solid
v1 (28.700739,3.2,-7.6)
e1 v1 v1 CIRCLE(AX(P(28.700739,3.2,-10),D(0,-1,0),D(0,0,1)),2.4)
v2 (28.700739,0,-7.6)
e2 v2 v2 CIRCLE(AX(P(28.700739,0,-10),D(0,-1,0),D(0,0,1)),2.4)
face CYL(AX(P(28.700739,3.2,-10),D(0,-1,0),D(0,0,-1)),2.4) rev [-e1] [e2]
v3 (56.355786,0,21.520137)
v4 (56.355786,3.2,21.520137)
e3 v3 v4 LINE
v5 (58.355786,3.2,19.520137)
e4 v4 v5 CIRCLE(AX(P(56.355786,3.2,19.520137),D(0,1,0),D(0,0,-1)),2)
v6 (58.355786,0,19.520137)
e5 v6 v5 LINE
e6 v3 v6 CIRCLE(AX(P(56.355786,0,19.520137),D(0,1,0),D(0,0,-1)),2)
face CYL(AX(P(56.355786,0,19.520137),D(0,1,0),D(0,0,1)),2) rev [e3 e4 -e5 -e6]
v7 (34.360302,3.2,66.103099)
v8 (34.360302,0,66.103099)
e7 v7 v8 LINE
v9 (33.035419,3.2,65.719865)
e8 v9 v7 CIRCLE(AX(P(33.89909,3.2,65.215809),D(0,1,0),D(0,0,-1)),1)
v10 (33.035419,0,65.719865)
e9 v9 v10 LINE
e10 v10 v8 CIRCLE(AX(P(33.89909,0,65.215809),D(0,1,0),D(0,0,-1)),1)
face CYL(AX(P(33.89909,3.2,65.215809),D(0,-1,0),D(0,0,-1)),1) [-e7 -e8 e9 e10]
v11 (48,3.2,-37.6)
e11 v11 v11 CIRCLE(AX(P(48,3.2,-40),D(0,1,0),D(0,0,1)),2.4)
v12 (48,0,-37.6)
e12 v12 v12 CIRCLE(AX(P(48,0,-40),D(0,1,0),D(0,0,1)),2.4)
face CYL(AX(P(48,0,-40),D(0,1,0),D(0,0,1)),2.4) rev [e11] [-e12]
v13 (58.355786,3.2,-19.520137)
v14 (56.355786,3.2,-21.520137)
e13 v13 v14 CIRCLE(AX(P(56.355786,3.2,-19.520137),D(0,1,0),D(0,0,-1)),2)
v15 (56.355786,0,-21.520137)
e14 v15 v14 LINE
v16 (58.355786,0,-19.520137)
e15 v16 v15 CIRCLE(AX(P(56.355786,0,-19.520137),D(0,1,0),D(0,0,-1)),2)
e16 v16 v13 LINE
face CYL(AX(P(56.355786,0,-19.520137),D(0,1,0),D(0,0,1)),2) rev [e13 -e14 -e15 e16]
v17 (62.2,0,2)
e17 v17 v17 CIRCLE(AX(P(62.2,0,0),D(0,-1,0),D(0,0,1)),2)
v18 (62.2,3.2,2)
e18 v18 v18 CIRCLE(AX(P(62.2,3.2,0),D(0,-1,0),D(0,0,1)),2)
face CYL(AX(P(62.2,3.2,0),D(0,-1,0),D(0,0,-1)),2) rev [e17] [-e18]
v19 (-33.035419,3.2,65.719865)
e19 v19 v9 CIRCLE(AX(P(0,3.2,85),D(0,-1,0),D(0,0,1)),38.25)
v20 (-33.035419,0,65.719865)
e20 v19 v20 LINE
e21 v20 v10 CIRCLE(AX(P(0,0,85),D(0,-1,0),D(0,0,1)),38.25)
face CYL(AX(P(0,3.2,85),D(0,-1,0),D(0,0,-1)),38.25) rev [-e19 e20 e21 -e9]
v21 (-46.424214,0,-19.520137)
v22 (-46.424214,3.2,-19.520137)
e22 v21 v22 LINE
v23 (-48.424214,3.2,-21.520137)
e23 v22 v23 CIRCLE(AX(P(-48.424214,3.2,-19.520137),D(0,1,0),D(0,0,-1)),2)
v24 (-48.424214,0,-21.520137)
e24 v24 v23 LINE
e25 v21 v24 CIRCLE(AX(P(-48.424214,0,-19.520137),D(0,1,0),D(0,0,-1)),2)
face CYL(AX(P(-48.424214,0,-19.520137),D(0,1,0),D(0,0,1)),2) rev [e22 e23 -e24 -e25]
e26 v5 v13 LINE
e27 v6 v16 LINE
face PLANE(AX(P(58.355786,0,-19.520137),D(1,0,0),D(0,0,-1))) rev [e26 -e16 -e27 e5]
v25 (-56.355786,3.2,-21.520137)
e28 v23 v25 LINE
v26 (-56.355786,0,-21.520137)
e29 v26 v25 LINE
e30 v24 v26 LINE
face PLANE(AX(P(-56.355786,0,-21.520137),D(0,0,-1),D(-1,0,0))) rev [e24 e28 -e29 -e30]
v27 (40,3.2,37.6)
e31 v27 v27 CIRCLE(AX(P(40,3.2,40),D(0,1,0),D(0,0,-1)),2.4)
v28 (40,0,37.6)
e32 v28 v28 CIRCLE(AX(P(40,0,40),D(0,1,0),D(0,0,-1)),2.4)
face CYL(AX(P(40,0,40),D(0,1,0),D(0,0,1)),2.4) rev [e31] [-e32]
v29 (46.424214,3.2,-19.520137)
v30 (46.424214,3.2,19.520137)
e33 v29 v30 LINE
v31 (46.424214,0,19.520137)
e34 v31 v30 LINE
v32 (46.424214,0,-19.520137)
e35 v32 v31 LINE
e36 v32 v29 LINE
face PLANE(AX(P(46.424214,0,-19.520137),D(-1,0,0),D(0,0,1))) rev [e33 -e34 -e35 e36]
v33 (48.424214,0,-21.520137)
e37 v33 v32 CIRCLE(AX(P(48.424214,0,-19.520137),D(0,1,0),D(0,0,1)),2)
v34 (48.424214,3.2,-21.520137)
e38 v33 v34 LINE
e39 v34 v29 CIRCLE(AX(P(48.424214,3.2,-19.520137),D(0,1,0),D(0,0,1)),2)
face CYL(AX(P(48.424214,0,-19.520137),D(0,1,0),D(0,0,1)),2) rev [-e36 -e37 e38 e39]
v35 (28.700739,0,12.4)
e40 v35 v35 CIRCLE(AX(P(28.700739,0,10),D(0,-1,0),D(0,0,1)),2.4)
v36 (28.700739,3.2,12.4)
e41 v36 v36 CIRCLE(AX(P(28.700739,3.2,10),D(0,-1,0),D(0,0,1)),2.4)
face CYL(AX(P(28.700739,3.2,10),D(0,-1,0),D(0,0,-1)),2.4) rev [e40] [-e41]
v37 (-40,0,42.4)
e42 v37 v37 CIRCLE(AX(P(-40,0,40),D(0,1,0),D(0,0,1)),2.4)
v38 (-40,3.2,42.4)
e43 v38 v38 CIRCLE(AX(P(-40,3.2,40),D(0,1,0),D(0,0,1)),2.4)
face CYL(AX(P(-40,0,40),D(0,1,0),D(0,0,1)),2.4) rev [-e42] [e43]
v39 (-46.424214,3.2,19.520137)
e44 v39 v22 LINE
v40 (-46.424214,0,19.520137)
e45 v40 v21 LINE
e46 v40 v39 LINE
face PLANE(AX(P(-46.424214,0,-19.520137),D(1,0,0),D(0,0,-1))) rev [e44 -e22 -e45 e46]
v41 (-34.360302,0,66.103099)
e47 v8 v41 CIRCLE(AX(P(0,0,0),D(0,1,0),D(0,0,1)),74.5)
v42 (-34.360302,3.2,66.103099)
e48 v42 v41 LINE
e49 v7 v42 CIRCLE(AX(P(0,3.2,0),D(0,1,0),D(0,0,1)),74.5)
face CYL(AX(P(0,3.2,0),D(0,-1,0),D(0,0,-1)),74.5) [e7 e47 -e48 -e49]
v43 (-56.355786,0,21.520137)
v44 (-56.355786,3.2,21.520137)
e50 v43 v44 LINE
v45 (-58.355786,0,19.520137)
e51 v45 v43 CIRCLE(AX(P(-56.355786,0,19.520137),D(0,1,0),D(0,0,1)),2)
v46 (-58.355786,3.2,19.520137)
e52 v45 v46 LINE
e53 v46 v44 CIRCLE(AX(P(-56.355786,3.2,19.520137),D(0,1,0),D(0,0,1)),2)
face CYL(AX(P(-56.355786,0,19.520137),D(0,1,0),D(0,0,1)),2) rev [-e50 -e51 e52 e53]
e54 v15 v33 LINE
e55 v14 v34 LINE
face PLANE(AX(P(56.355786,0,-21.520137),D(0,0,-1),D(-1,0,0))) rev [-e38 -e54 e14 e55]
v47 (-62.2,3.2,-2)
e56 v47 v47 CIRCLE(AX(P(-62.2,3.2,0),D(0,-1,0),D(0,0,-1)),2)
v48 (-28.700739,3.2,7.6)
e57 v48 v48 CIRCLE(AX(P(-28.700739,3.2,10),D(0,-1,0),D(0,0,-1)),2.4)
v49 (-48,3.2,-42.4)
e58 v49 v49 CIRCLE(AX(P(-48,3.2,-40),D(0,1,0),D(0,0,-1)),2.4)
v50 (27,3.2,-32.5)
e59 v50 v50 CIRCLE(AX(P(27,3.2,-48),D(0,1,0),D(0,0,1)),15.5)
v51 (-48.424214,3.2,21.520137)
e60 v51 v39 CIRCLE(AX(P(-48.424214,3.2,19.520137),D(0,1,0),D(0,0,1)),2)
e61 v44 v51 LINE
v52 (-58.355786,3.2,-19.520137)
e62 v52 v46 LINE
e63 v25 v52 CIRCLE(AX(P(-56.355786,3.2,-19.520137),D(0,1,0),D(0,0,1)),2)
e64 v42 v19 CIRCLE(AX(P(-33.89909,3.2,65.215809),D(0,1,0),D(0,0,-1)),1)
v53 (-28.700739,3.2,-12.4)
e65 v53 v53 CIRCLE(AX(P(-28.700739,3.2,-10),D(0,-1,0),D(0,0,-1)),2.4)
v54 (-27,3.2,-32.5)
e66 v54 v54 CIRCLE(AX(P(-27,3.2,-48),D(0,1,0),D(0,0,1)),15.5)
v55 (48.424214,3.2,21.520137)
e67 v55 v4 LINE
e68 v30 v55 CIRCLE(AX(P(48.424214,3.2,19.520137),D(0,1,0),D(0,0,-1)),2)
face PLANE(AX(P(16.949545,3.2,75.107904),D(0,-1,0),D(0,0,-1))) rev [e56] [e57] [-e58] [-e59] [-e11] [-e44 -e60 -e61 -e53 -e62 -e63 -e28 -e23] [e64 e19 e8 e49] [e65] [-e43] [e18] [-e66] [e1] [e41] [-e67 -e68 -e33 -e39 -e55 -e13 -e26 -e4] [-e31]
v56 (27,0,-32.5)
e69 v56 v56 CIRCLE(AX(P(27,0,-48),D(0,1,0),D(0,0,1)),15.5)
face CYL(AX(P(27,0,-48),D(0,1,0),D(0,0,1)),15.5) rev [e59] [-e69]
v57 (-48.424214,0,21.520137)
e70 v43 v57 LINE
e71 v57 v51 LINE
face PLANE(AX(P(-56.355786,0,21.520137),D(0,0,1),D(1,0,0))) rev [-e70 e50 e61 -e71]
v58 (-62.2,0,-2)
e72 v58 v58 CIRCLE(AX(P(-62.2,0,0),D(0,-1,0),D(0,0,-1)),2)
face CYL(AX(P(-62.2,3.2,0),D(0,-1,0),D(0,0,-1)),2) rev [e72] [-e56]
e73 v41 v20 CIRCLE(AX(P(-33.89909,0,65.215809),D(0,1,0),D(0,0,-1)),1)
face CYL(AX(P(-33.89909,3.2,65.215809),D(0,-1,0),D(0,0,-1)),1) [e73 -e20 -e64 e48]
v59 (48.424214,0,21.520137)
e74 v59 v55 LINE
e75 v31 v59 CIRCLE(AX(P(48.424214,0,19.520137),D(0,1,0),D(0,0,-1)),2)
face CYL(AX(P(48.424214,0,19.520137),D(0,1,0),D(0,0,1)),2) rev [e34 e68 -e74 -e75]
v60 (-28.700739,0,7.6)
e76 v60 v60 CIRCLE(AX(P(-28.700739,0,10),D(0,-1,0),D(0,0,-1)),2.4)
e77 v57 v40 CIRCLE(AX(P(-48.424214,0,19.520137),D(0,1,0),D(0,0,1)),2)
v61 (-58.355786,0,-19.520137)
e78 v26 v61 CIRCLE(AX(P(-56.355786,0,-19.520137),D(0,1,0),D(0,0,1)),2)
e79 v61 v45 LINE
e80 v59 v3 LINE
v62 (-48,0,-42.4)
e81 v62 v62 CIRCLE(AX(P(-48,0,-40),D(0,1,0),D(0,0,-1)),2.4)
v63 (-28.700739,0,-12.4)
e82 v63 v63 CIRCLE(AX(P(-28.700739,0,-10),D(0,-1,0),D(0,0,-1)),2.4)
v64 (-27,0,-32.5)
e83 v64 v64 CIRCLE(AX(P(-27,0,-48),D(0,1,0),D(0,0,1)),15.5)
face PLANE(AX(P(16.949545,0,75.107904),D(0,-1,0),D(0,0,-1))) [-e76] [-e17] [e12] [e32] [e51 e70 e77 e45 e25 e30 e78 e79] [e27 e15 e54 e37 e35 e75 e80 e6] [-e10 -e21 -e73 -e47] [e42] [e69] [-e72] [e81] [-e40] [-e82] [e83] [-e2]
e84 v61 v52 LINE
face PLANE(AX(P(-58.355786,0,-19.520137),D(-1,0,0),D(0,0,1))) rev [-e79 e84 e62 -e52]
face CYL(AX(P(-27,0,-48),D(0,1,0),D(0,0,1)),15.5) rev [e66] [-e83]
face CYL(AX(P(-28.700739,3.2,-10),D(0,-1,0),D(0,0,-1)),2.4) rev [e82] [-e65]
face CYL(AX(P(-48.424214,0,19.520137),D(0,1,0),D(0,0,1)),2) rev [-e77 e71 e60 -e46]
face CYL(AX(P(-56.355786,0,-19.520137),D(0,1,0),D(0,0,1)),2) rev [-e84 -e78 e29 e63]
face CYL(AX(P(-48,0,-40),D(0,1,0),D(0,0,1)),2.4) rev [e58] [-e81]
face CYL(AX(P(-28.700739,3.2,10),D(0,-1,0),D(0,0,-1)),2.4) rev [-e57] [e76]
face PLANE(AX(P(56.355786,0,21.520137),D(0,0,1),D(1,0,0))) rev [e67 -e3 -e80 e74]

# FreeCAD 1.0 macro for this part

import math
import FreeCAD as App
import Part
import Sketcher
from FreeCAD import Vector
Q = App.Units.Quantity

doc = App.newDocument("Part")
body = doc.addObject("PartDesign::Body", "Body")

# Sketch on XZ plane
sketch1 = doc.addObject("Sketcher::SketchObject", "Sketch")
body.addObject(sketch1)
sketch1.AttachmentSupport = (doc.XZ_Plane, [""])
sketch1.MapMode = "FlatFace"
sketch1.addGeometry([
    Part.ArcOfCircle(Part.Circle(Vector(0, 0, 0), Vector(0, 0, 1), 74.5), math.radians(117.46535), math.radians(422.53465)),
    Part.ArcOfCircle(Part.Circle(Vector(-33.89909, 65.215809, 0), Vector(0, 0, 1), 1), math.radians(30.268696), math.radians(117.46535)),
    Part.ArcOfCircle(Part.Circle(Vector(0, 85, 0), Vector(0, 0, 1), 38.25), math.radians(-149.731304), math.radians(-30.268696)),
    Part.ArcOfCircle(Part.Circle(Vector(33.89909, 65.215809, 0), Vector(0, 0, 1), 1), math.radians(62.53465), math.radians(149.731304)),
], False)
sketch1.addConstraint([
    Sketcher.Constraint("Tangent", 0, 1, 1, 2),
    Sketcher.Constraint("Tangent", 1, 1, 2, 1),
    Sketcher.Constraint("Tangent", 2, 2, 3, 2),
    Sketcher.Constraint("Tangent", 3, 1, 0, 2),
    Sketcher.Constraint("Coincident", 0, 3, -1, 1),
    Sketcher.Constraint("Equal", 1, 3),
    Sketcher.Constraint("PointOnObject", 2, 3, -2),
    Sketcher.Constraint("Radius", 1, Q("1 mm")),
    Sketcher.Constraint("Radius", 0, Q("74.5 mm")),
    Sketcher.Constraint("Radius", 2, Q("38.25 mm")),
    Sketcher.Constraint("DistanceY", -1, 1, 2, 3, Q("85 mm")),
])
pad1 = doc.addObject("PartDesign::Pad", "Pad")
body.addObject(pad1)
pad1.Profile = sketch1
pad1.Length = 3.2
pad1.Reversed = True

# Sketch on XZ plane
sketch2 = doc.addObject("Sketcher::SketchObject", "Sketch001")
body.addObject(sketch2)
sketch2.AttachmentSupport = (doc.XZ_Plane, [""])
sketch2.MapMode = "FlatFace"
sketch2.AttachmentOffset = App.Placement(Vector(0, 0, -3.2), App.Rotation())
sketch2.addGeometry([
    Part.LineSegment(Vector(-57.77, -20.93435, 0), Vector(-57.77, 20.93435, 0)),  # 0
    Part.LineSegment(Vector(-57.77, 20.93435, 0), Vector(-47.01, 20.93435, 0)),  # 1
    Part.LineSegment(Vector(-47.01, 20.93435, 0), Vector(-47.01, -20.93435, 0)),  # 2
    Part.LineSegment(Vector(-47.01, -20.93435, 0), Vector(-57.77, -20.93435, 0)),  # 3
    Part.LineSegment(Vector(47.01, -20.93435, 0), Vector(47.01, 20.93435, 0)),  # 4
    Part.LineSegment(Vector(47.01, 20.93435, 0), Vector(57.77, 20.93435, 0)),  # 5
    Part.LineSegment(Vector(57.77, 20.93435, 0), Vector(57.77, -20.93435, 0)),  # 6
    Part.LineSegment(Vector(57.77, -20.93435, 0), Vector(47.01, -20.93435, 0)),  # 7
], False)
sketch2.addConstraint([
    Sketcher.Constraint("Coincident", 0, 2, 1, 1),
    Sketcher.Constraint("Coincident", 1, 2, 2, 1),
    Sketcher.Constraint("Coincident", 2, 2, 3, 1),
    Sketcher.Constraint("Coincident", 3, 2, 0, 1),
    Sketcher.Constraint("Coincident", 4, 2, 5, 1),
    Sketcher.Constraint("Coincident", 5, 2, 6, 1),
    Sketcher.Constraint("Coincident", 6, 2, 7, 1),
    Sketcher.Constraint("Coincident", 7, 2, 4, 1),
    Sketcher.Constraint("Vertical", 0),
    Sketcher.Constraint("Horizontal", 1),
    Sketcher.Constraint("Vertical", 2),
    Sketcher.Constraint("Horizontal", 3),
    Sketcher.Constraint("Vertical", 4),
    Sketcher.Constraint("Horizontal", 5),
    Sketcher.Constraint("Vertical", 6),
    Sketcher.Constraint("Horizontal", 7),
    Sketcher.Constraint("Symmetric", 2, 2, 4, 2, -1, 1),
    Sketcher.Constraint("Symmetric", 0, 2, 6, 2, -1, 1),
    Sketcher.Constraint("Horizontal", 1, 2, 4, 2),
    Sketcher.Constraint("DistanceX", 1, 1, 1, 2, Q("10.76 mm")),
    Sketcher.Constraint("DistanceX", 0, 2, -1, 1, Q("57.77 mm")),
    Sketcher.Constraint("DistanceY", 0, 1, 0, 2, Q("41.8687 mm")),
])
pocket1 = doc.addObject("PartDesign::Pocket", "Pocket")
body.addObject(pocket1)
pocket1.Profile = sketch2
pocket1.Type = "ThroughAll"
pocket1.Reversed = True

# Sketch on XZ plane
sketch3 = doc.addObject("Sketcher::SketchObject", "Sketch002")
body.addObject(sketch3)
sketch3.AttachmentSupport = (doc.XZ_Plane, [""])
sketch3.MapMode = "FlatFace"
sketch3.addGeometry([
    Part.Circle(Vector(-62.2, 0, 0), Vector(0, 0, 1), 2),  # 0
    Part.Circle(Vector(-28.700739, 10, 0), Vector(0, 0, 1), 2.4),  # 1
    Part.Circle(Vector(-28.700739, -10, 0), Vector(0, 0, 1), 2.4),  # 2
    Part.Circle(Vector(28.700739, -10, 0), Vector(0, 0, 1), 2.4),  # 3
    Part.Circle(Vector(28.700739, 10, 0), Vector(0, 0, 1), 2.4),  # 4
    Part.Circle(Vector(62.2, 0, 0), Vector(0, 0, 1), 2),  # 5
], False)
sketch3.addConstraint([
    Sketcher.Constraint("Equal", 1, 2),
    Sketcher.Constraint("Equal", 2, 3),
    Sketcher.Constraint("Equal", 3, 4),
    Sketcher.Constraint("Equal", 0, 5),
    Sketcher.Constraint("Symmetric", 1, 3, 3, 3, -1, 1),
    Sketcher.Constraint("Symmetric", 2, 3, 4, 3, -1, 1),
    Sketcher.Constraint("Symmetric", 0, 3, 5, 3, -1, 1),
    Sketcher.Constraint("Symmetric", 2, 3, 3, 3, -2),
    Sketcher.Constraint("PointOnObject", 0, 3, -1),
    Sketcher.Constraint("Diameter", 0, Q("4 mm")),
    Sketcher.Constraint("Diameter", 1, Q("4.8 mm")),
    Sketcher.Constraint("DistanceY", -1, 1, 1, 3, Q("10 mm")),
    Sketcher.Constraint("DistanceX", 0, 3, -1, 1, Q("62.2 mm")),
    Sketcher.Constraint("DistanceX", 1, 3, -1, 1, Q("28.700739 mm")),
])
pocket2 = doc.addObject("PartDesign::Pocket", "Pocket001")
body.addObject(pocket2)
pocket2.Profile = sketch3
pocket2.Type = "ThroughAll"

# Sketch on XZ plane
sketch4 = doc.addObject("Sketcher::SketchObject", "Sketch003")
body.addObject(sketch4)
sketch4.AttachmentSupport = (doc.XZ_Plane, [""])
sketch4.MapMode = "FlatFace"
sketch4.AttachmentOffset = App.Placement(Vector(0, 0, -3.2), App.Rotation())
sketch4.addGeometry([
    Part.Circle(Vector(-27, -48, 0), Vector(0, 0, 1), 15),
    Part.Circle(Vector(27, -48, 0), Vector(0, 0, 1), 15),
], False)
sketch4.addConstraint([
    Sketcher.Constraint("Equal", 0, 1),
    Sketcher.Constraint("Symmetric", 0, 3, 1, 3, -2),
    Sketcher.Constraint("Diameter", 0, Q("30 mm")),
    Sketcher.Constraint("DistanceX", 0, 3, -1, 1, Q("27 mm")),
    Sketcher.Constraint("DistanceY", 0, 3, -1, 1, Q("48 mm")),
])
pocket3 = doc.addObject("PartDesign::Pocket", "Pocket002")
body.addObject(pocket3)
pocket3.Profile = sketch4
pocket3.Type = "ThroughAll"
pocket3.Reversed = True

# Sketch on XZ plane
sketch5 = doc.addObject("Sketcher::SketchObject", "Sketch004")
body.addObject(sketch5)
sketch5.AttachmentSupport = (doc.XZ_Plane, [""])
sketch5.MapMode = "FlatFace"
sketch5.AttachmentOffset = App.Placement(Vector(0, 0, -3.2), App.Rotation())
sketch5.addGeometry([
    Part.LineSegment(Vector(-48.424214, -21.520137, 0), Vector(-56.355786, -21.520137, 0)),  # 0
    Part.ArcOfCircle(Part.Circle(Vector(-56.355786, -19.520137, 0), Vector(0, 0, 1), 2), math.radians(-180), math.radians(-90)),  # 1
    Part.LineSegment(Vector(-58.355786, -19.520137, 0), Vector(-58.355786, 19.520137, 0)),  # 2
    Part.ArcOfCircle(Part.Circle(Vector(-56.355786, 19.520137, 0), Vector(0, 0, 1), 2), math.radians(90), math.radians(180)),  # 3
    Part.LineSegment(Vector(-56.355786, 21.520137, 0), Vector(-48.424214, 21.520137, 0)),  # 4
    Part.ArcOfCircle(Part.Circle(Vector(-48.424214, 19.520137, 0), Vector(0, 0, 1), 2), math.radians(0), math.radians(90)),  # 5
    Part.LineSegment(Vector(-46.424214, 19.520137, 0), Vector(-46.424214, -19.520137, 0)),  # 6
    Part.ArcOfCircle(Part.Circle(Vector(-48.424214, -19.520137, 0), Vector(0, 0, 1), 2), math.radians(-90), math.radians(0)),  # 7
    Part.LineSegment(Vector(46.424214, -19.520137, 0), Vector(46.424214, 19.520137, 0)),  # 8
    Part.ArcOfCircle(Part.Circle(Vector(48.424214, 19.520137, 0), Vector(0, 0, 1), 2), math.radians(90), math.radians(180)),  # 9
    Part.LineSegment(Vector(48.424214, 21.520137, 0), Vector(56.355786, 21.520137, 0)),  # 10
    Part.ArcOfCircle(Part.Circle(Vector(56.355786, 19.520137, 0), Vector(0, 0, 1), 2), math.radians(0), math.radians(90)),  # 11
    Part.LineSegment(Vector(58.355786, 19.520137, 0), Vector(58.355786, -19.520137, 0)),  # 12
    Part.ArcOfCircle(Part.Circle(Vector(56.355786, -19.520137, 0), Vector(0, 0, 1), 2), math.radians(-90), math.radians(0)),  # 13
    Part.LineSegment(Vector(56.355786, -21.520137, 0), Vector(48.424214, -21.520137, 0)),  # 14
    Part.ArcOfCircle(Part.Circle(Vector(48.424214, -19.520137, 0), Vector(0, 0, 1), 2), math.radians(-180), math.radians(-90)),  # 15
], False)
sketch5.addConstraint([
    Sketcher.Constraint("Tangent", 0, 2, 1, 2),
    Sketcher.Constraint("Tangent", 1, 1, 2, 1),
    Sketcher.Constraint("Tangent", 2, 2, 3, 2),
    Sketcher.Constraint("Tangent", 3, 1, 4, 1),
    Sketcher.Constraint("Tangent", 4, 2, 5, 2),
    Sketcher.Constraint("Tangent", 5, 1, 6, 1),
    Sketcher.Constraint("Tangent", 6, 2, 7, 2),
    Sketcher.Constraint("Tangent", 7, 1, 0, 1),
    Sketcher.Constraint("Tangent", 8, 2, 9, 2),
    Sketcher.Constraint("Tangent", 9, 1, 10, 1),
    Sketcher.Constraint("Tangent", 10, 2, 11, 2),
    Sketcher.Constraint("Tangent", 11, 1, 12, 1),
    Sketcher.Constraint("Tangent", 12, 2, 13, 2),
    Sketcher.Constraint("Tangent", 13, 1, 14, 1),
    Sketcher.Constraint("Tangent", 14, 2, 15, 2),
    Sketcher.Constraint("Tangent", 15, 1, 8, 1),
    Sketcher.Constraint("Horizontal", 0),
    Sketcher.Constraint("Vertical", 2),
    Sketcher.Constraint("Horizontal", 4),
    Sketcher.Constraint("Vertical", 6),
    Sketcher.Constraint("Vertical", 8),
    Sketcher.Constraint("Horizontal", 10),
    Sketcher.Constraint("Vertical", 12),
    Sketcher.Constraint("Horizontal", 14),
    Sketcher.Constraint("Equal", 1, 3),
    Sketcher.Constraint("Equal", 3, 5),
    Sketcher.Constraint("Equal", 5, 7),
    Sketcher.Constraint("Equal", 7, 9),
    Sketcher.Constraint("Equal", 9, 11),
    Sketcher.Constraint("Equal", 11, 13),
    Sketcher.Constraint("Equal", 13, 15),
    Sketcher.Constraint("Symmetric", 7, 3, 9, 3, -1, 1),
    Sketcher.Constraint("Symmetric", 3, 3, 13, 3, -1, 1),
    Sketcher.Constraint("Horizontal", 5, 3, 9, 3),
    Sketcher.Constraint("Radius", 1, Q("2 mm")),
    Sketcher.Constraint("DistanceX", 3, 3, 9, 3, Q("104.78 mm")),
    Sketcher.Constraint("DistanceX", 0, 2, 0, 1, Q("7.931573 mm")),
    Sketcher.Constraint("DistanceY", 2, 1, 2, 2, Q("39.040273 mm")),
])
pocket4 = doc.addObject("PartDesign::Pocket", "Pocket003")
body.addObject(pocket4)
pocket4.Profile = sketch5
pocket4.Type = "ThroughAll"
pocket4.Reversed = True

# Sketch on XZ plane
sketch6 = doc.addObject("Sketcher::SketchObject", "Sketch005")
body.addObject(sketch6)
sketch6.AttachmentSupport = (doc.XZ_Plane, [""])
sketch6.MapMode = "FlatFace"
sketch6.AttachmentOffset = App.Placement(Vector(0, 0, -3.2), App.Rotation())
sketch6.addGeometry([
    Part.Circle(Vector(48, -40, 0), Vector(0, 0, 1), 2.4),
    Part.Circle(Vector(-40, 40, 0), Vector(0, 0, 1), 2.4),
    Part.Circle(Vector(40, 40, 0), Vector(0, 0, 1), 2.4),
    Part.Circle(Vector(-48, -40, 0), Vector(0, 0, 1), 2.4),
], False)
sketch6.addConstraint([
    Sketcher.Constraint("Equal", 0, 1),
    Sketcher.Constraint("Equal", 1, 2),
    Sketcher.Constraint("Equal", 2, 3),
    Sketcher.Constraint("Symmetric", 1, 3, 2, 3, -2),
    Sketcher.Constraint("Symmetric", 0, 3, 3, 3, -2),
    Sketcher.Constraint("Diameter", 0, Q("4.8 mm")),
    Sketcher.Constraint("DistanceX", -1, 1, 0, 3, Q("48 mm")),
    Sketcher.Constraint("DistanceY", 0, 3, -1, 1, Q("40 mm")),
    Sketcher.Constraint("DistanceX", 1, 3, -1, 1, Q("40 mm")),
    Sketcher.Constraint("DistanceY", -1, 1, 1, 3, Q("40 mm")),
])
pocket5 = doc.addObject("PartDesign::Pocket", "Pocket004")
body.addObject(pocket5)
pocket5.Profile = sketch6
pocket5.Type = "ThroughAll"
pocket5.Reversed = True

# Sketch on XZ plane
sketch7 = doc.addObject("Sketcher::SketchObject", "Sketch006")
body.addObject(sketch7)
sketch7.AttachmentSupport = (doc.XZ_Plane, [""])
sketch7.MapMode = "FlatFace"
sketch7.AttachmentOffset = App.Placement(Vector(0, 0, -3.2), App.Rotation())
sketch7.addGeometry([
    Part.Circle(Vector(-27, -48, 0), Vector(0, 0, 1), 15.5),
    Part.Circle(Vector(27, -48, 0), Vector(0, 0, 1), 15.5),
], False)
sketch7.addConstraint([
    Sketcher.Constraint("Equal", 0, 1),
    Sketcher.Constraint("Symmetric", 0, 3, 1, 3, -2),
    Sketcher.Constraint("Diameter", 0, Q("31 mm")),
    Sketcher.Constraint("DistanceX", 0, 3, -1, 1, Q("27 mm")),
    Sketcher.Constraint("DistanceY", 0, 3, -1, 1, Q("48 mm")),
])
pocket6 = doc.addObject("PartDesign::Pocket", "Pocket005")
body.addObject(pocket6)
pocket6.Profile = sketch7
pocket6.Type = "ThroughAll"
pocket6.Reversed = True

doc.recompute()
